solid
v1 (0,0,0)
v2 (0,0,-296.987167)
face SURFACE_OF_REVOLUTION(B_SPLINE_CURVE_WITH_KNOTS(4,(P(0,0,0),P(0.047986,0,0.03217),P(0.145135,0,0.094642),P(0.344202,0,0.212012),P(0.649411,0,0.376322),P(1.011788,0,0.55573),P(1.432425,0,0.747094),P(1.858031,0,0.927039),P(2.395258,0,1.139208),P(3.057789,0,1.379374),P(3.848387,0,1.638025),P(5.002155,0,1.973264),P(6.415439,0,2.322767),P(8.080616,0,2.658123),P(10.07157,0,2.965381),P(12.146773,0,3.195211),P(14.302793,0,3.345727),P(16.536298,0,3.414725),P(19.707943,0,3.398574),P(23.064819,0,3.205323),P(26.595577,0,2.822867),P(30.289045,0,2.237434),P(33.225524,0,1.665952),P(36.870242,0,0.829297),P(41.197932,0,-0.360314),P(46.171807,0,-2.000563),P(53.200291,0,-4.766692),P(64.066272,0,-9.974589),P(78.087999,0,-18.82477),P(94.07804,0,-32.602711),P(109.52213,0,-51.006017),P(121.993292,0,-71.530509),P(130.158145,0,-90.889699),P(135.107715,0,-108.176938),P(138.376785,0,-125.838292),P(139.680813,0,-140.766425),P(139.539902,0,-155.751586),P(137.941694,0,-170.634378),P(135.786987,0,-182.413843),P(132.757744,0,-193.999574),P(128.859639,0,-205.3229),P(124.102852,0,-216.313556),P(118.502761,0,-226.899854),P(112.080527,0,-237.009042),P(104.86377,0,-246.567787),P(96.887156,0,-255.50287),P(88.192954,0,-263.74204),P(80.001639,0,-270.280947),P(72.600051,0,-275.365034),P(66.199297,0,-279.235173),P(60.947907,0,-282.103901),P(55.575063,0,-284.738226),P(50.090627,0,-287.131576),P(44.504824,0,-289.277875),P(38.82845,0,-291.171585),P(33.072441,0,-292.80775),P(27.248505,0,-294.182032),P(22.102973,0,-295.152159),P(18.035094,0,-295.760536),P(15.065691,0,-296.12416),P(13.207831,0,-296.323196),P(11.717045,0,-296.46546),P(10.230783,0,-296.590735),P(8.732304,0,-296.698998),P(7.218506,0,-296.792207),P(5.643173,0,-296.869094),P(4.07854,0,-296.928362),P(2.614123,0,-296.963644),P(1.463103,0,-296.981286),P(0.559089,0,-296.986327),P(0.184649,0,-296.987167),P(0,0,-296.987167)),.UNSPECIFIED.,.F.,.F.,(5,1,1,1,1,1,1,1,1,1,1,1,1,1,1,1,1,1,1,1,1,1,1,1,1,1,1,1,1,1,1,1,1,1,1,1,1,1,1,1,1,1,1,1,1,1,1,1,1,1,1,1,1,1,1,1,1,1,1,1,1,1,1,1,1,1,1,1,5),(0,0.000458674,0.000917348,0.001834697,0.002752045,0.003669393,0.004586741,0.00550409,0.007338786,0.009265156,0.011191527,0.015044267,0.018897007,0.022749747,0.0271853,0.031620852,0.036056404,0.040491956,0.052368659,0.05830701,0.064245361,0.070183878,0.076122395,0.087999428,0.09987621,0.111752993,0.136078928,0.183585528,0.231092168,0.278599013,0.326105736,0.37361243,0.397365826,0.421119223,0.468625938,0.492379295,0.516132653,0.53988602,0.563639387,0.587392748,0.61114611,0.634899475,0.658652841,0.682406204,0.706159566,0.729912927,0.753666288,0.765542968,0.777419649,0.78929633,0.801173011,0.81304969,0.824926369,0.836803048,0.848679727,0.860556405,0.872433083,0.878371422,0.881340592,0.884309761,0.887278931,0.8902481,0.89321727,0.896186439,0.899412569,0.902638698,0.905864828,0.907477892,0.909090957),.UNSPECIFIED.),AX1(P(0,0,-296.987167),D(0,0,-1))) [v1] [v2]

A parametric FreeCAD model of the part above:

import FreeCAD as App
import Part
import Sketcher
from FreeCAD import Vector

doc = App.newDocument("Part")
body = doc.addObject("PartDesign::Body", "Body")

sketch1 = doc.addObject("Sketcher::SketchObject", "Sketch")
body.addObject(sketch1)
sketch1.AttachmentSupport = (doc.XZ_Plane, [""])
sketch1.MapMode = "FlatFace"
sketch1.addGeometry(Part.LineSegment(Vector(0, -296.987167, 0), Vector(0, 0, 0)), False)
sketch1.addGeometry(Part.BSplineCurve([Vector(0, 0, 0), Vector(0.047986, 0.03217, 0), Vector(0.145135, 0.094642, 0), Vector(0.344202, 0.212012, 0), Vector(0.649411, 0.376322, 0), Vector(1.011788, 0.55573, 0), Vector(1.432425, 0.747094, 0), Vector(1.858031, 0.927039, 0), Vector(2.395258, 1.139208, 0), Vector(3.057789, 1.379374, 0), Vector(3.848387, 1.638025, 0), Vector(5.002155, 1.973264, 0), Vector(6.415439, 2.322767, 0), Vector(8.080616, 2.658123, 0), Vector(10.07157, 2.965381, 0), Vector(12.146773, 3.195211, 0), Vector(14.302793, 3.345727, 0), Vector(16.536298, 3.414725, 0), Vector(19.707943, 3.398574, 0), Vector(23.064819, 3.205323, 0), Vector(26.595577, 2.822867, 0), Vector(30.289045, 2.237434, 0), Vector(33.225524, 1.665952, 0), Vector(36.870242, 0.829297, 0), Vector(41.197932, -0.360314, 0), Vector(46.171807, -2.000563, 0), Vector(53.200291, -4.766692, 0), Vector(64.066272, -9.974589, 0), Vector(78.087999, -18.82477, 0), Vector(94.07804, -32.602711, 0), Vector(109.52213, -51.006017, 0), Vector(121.993292, -71.530509, 0), Vector(130.158145, -90.889699, 0), Vector(135.107715, -108.176938, 0), Vector(138.376785, -125.838292, 0), Vector(139.680813, -140.766425, 0), Vector(139.539902, -155.751586, 0), Vector(137.941694, -170.634378, 0), Vector(135.786987, -182.413843, 0), Vector(132.757744, -193.999574, 0), Vector(128.859639, -205.3229, 0), Vector(124.102852, -216.313556, 0), Vector(118.502761, -226.899854, 0), Vector(112.080527, -237.009042, 0), Vector(104.86377, -246.567787, 0), Vector(96.887156, -255.50287, 0), Vector(88.192954, -263.74204, 0), Vector(80.001639, -270.280947, 0), Vector(72.600051, -275.365034, 0), Vector(66.199297, -279.235173, 0), Vector(60.947907, -282.103901, 0), Vector(55.575063, -284.738226, 0), Vector(50.090627, -287.131576, 0), Vector(44.504824, -289.277875, 0), Vector(38.82845, -291.171585, 0), Vector(33.072441, -292.80775, 0), Vector(27.248505, -294.182032, 0), Vector(22.102973, -295.152159, 0), Vector(18.035094, -295.760536, 0), Vector(15.065691, -296.12416, 0), Vector(13.207831, -296.323196, 0), Vector(11.717045, -296.46546, 0), Vector(10.230783, -296.590735, 0), Vector(8.732304, -296.698998, 0), Vector(7.218506, -296.792207, 0), Vector(5.643173, -296.869094, 0), Vector(4.07854, -296.928362, 0), Vector(2.614123, -296.963644, 0), Vector(1.463103, -296.981286, 0), Vector(0.559089, -296.986327, 0), Vector(0.184649, -296.987167, 0), Vector(0, -296.987167, 0)], [5, 1, 1, 1, 1, 1, 1, 1, 1, 1, 1, 1, 1, 1, 1, 1, 1, 1, 1, 1, 1, 1, 1, 1, 1, 1, 1, 1, 1, 1, 1, 1, 1, 1, 1, 1, 1, 1, 1, 1, 1, 1, 1, 1, 1, 1, 1, 1, 1, 1, 1, 1, 1, 1, 1, 1, 1, 1, 1, 1, 1, 1, 1, 1, 1, 1, 1, 1, 5], [0, 0.000458674, 0.000917348, 0.001834697, 0.002752045, 0.003669393, 0.004586741, 0.00550409, 0.007338786, 0.009265156, 0.011191527, 0.015044267, 0.018897007, 0.022749747, 0.0271853, 0.031620852, 0.036056404, 0.040491956, 0.052368659, 0.05830701, 0.064245361, 0.070183878, 0.076122395, 0.087999428, 0.09987621, 0.111752993, 0.136078928, 0.183585528, 0.231092168, 0.278599013, 0.326105736, 0.37361243, 0.397365826, 0.421119223, 0.468625938, 0.492379295, 0.516132653, 0.53988602, 0.563639387, 0.587392748, 0.61114611, 0.634899475, 0.658652841, 0.682406204, 0.706159566, 0.729912927, 0.753666288, 0.765542968, 0.777419649, 0.78929633, 0.801173011, 0.81304969, 0.824926369, 0.836803048, 0.848679727, 0.860556405, 0.872433083, 0.878371422, 0.881340592, 0.884309761, 0.887278931, 0.8902481, 0.89321727, 0.896186439, 0.899412569, 0.902638698, 0.905864828, 0.907477892, 0.909090957], False, 4, [1, 1, 1, 1, 1, 1, 1, 1, 1, 1, 1, 1, 1, 1, 1, 1, 1, 1, 1, 1, 1, 1, 1, 1, 1, 1, 1, 1, 1, 1, 1, 1, 1, 1, 1, 1, 1, 1, 1, 1, 1, 1, 1, 1, 1, 1, 1, 1, 1, 1, 1, 1, 1, 1, 1, 1, 1, 1, 1, 1, 1, 1, 1, 1, 1, 1, 1, 1, 1, 1, 1, 1], False), False)
sketch1.addConstraint(Sketcher.Constraint("Block", 1))
sketch1.addConstraint(Sketcher.Constraint("Coincident", 0, 1, 1, 2))
sketch1.addConstraint(Sketcher.Constraint("Coincident", 1, 1, 0, 2))
revolution = doc.addObject("PartDesign::Revolution", "Revolution")
body.addObject(revolution)
revolution.Profile = sketch1
revolution.ReferenceAxis = (sketch1, ["V_Axis"])
revolution.Angle = 360

doc.recompute()
